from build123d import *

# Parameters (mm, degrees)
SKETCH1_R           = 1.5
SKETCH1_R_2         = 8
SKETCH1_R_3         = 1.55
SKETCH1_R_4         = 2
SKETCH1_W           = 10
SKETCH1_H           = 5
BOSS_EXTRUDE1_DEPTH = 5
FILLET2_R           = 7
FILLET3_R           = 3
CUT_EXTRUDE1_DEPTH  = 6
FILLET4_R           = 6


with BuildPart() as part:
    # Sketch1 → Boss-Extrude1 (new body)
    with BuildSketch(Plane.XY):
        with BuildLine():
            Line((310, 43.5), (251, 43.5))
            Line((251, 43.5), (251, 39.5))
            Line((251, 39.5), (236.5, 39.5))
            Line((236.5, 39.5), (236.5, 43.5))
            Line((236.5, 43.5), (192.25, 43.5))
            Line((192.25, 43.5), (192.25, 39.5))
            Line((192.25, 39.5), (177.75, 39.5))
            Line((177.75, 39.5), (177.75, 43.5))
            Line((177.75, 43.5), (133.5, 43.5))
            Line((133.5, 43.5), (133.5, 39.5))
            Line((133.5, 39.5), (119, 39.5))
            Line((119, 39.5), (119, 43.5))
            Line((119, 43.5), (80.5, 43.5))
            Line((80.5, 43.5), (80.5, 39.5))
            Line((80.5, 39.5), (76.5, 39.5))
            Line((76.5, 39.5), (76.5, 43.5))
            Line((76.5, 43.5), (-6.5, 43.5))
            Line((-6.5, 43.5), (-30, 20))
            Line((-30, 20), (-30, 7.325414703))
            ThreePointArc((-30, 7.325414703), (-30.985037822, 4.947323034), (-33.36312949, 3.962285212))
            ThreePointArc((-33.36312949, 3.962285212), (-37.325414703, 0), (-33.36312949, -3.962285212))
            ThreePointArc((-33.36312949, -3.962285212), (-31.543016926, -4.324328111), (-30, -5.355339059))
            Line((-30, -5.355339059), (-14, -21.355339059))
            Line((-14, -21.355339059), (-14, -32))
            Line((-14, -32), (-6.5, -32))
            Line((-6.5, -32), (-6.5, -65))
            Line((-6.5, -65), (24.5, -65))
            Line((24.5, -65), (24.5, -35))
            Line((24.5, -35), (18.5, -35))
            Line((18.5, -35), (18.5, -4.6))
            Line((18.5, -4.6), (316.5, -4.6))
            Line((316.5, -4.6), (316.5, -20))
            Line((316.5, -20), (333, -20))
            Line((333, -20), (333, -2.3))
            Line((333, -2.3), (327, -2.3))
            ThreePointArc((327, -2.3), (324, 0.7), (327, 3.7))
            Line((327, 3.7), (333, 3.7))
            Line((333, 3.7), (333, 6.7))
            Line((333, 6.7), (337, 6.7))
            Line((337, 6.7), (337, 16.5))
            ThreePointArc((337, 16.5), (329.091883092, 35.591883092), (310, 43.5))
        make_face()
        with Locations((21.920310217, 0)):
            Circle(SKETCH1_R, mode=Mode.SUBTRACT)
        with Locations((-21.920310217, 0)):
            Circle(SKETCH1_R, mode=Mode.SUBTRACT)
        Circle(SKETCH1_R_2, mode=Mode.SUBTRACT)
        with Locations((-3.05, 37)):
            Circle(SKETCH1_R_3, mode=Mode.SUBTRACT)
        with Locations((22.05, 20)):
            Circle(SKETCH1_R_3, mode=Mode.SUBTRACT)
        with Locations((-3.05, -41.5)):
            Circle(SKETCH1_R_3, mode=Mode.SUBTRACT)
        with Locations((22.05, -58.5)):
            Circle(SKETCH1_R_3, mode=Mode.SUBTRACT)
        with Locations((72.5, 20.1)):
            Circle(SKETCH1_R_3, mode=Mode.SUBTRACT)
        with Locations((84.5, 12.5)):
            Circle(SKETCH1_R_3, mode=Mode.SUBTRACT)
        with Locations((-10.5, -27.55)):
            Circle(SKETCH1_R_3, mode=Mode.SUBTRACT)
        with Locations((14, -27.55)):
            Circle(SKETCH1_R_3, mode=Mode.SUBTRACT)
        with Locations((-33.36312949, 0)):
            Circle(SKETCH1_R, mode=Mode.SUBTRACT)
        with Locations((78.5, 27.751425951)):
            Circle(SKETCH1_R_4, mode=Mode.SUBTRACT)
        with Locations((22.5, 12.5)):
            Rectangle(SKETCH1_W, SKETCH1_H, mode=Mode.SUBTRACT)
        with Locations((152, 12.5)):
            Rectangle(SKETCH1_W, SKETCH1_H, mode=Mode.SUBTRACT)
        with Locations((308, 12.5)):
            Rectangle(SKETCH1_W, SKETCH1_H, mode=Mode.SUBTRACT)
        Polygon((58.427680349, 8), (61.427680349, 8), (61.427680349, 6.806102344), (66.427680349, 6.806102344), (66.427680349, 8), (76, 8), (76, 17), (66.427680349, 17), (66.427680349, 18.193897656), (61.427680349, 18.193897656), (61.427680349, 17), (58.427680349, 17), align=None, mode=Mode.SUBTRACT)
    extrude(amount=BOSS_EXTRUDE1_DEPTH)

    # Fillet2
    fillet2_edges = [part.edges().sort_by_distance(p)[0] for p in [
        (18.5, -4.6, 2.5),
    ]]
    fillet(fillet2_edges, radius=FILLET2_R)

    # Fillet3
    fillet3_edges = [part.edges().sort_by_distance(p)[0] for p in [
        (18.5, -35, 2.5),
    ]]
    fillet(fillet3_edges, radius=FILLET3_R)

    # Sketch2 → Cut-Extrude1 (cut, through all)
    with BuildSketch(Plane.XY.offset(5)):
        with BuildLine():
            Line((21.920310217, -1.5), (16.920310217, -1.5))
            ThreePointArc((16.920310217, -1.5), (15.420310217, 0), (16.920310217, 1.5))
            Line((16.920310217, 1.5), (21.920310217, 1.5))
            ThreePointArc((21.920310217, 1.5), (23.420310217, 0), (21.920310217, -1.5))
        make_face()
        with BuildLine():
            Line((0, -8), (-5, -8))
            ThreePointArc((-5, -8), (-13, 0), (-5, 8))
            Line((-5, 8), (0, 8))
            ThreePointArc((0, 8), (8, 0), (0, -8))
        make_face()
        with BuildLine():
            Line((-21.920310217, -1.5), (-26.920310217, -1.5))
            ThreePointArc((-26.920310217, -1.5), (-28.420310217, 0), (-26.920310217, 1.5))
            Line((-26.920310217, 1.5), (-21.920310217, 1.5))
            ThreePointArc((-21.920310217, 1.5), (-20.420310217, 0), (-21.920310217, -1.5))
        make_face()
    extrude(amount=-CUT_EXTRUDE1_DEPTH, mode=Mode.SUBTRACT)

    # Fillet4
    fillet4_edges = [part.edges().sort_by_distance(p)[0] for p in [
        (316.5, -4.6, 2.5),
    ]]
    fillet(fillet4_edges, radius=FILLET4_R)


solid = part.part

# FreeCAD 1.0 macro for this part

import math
import FreeCAD as App
import Part
import Sketcher
Q = App.Units.Quantity


def edges_at(feature, points):
    """Names of the edges that pass closest to the given points."""
    edges = feature.Shape.Edges
    near = lambda p: min(range(len(edges)), key=lambda i: edges[i].distToShape(Part.Vertex(*p))[0])
    return sorted({f"Edge{near(p) + 1}" for p in points})

doc = App.newDocument("Part")
body = doc.addObject("PartDesign::Body", "Body")

sketch1 = doc.addObject("Sketcher::SketchObject", "Sketch")
body.addObject(sketch1)
sketch1.AttachmentSupport = (doc.XY_Plane, [""])
sketch1.MapMode = "FlatFace"
sketch1.addGeometry([
    Part.LineSegment(App.Vector(310, 43.5, 0), App.Vector(251, 43.5, 0)),
    Part.LineSegment(App.Vector(251, 43.5, 0), App.Vector(251, 39.5, 0)),
    Part.LineSegment(App.Vector(251, 39.5, 0), App.Vector(236.5, 39.5, 0)),
    Part.LineSegment(App.Vector(236.5, 39.5, 0), App.Vector(236.5, 43.5, 0)),
    Part.LineSegment(App.Vector(236.5, 43.5, 0), App.Vector(192.25, 43.5, 0)),
    Part.LineSegment(App.Vector(192.25, 43.5, 0), App.Vector(192.25, 39.5, 0)),
    Part.LineSegment(App.Vector(192.25, 39.5, 0), App.Vector(177.75, 39.5, 0)),
    Part.LineSegment(App.Vector(177.75, 39.5, 0), App.Vector(177.75, 43.5, 0)),
    Part.LineSegment(App.Vector(177.75, 43.5, 0), App.Vector(133.5, 43.5, 0)),
    Part.LineSegment(App.Vector(133.5, 43.5, 0), App.Vector(133.5, 39.5, 0)),
    Part.LineSegment(App.Vector(133.5, 39.5, 0), App.Vector(119, 39.5, 0)),
    Part.LineSegment(App.Vector(119, 39.5, 0), App.Vector(119, 43.5, 0)),
    Part.LineSegment(App.Vector(119, 43.5, 0), App.Vector(80.5, 43.5, 0)),
    Part.LineSegment(App.Vector(80.5, 43.5, 0), App.Vector(80.5, 39.5, 0)),
    Part.LineSegment(App.Vector(80.5, 39.5, 0), App.Vector(76.5, 39.5, 0)),
    Part.LineSegment(App.Vector(76.5, 39.5, 0), App.Vector(76.5, 43.5, 0)),
    Part.LineSegment(App.Vector(76.5, 43.5, 0), App.Vector(-6.5, 43.5, 0)),
    Part.LineSegment(App.Vector(-6.5, 43.5, 0), App.Vector(-30, 20, 0)),
    Part.LineSegment(App.Vector(-30, 20, 0), App.Vector(-30, 7.325415, 0)),
    Part.ArcOfCircle(Part.Circle(App.Vector(-33.363129, 7.325415, 0), App.Vector(0, 0, 1), 3.363129), math.radians(-90), math.radians(0)),
    Part.ArcOfCircle(Part.Circle(App.Vector(-33.363129, 0, 0), App.Vector(0, 0, 1), 3.962285), math.radians(90), math.radians(270)),
    Part.ArcOfCircle(Part.Circle(App.Vector(-33.363129, -8.718469, 0), App.Vector(0, 0, 1), 4.756183), math.radians(45), math.radians(90)),
    Part.LineSegment(App.Vector(-30, -5.355339, 0), App.Vector(-14, -21.355339, 0)),
    Part.LineSegment(App.Vector(-14, -21.355339, 0), App.Vector(-14, -32, 0)),
    Part.LineSegment(App.Vector(-14, -32, 0), App.Vector(-6.5, -32, 0)),
    Part.LineSegment(App.Vector(-6.5, -32, 0), App.Vector(-6.5, -65, 0)),
    Part.LineSegment(App.Vector(-6.5, -65, 0), App.Vector(24.5, -65, 0)),
    Part.LineSegment(App.Vector(24.5, -65, 0), App.Vector(24.5, -35, 0)),
    Part.LineSegment(App.Vector(24.5, -35, 0), App.Vector(18.5, -35, 0)),
    Part.LineSegment(App.Vector(18.5, -35, 0), App.Vector(18.5, -4.6, 0)),
    Part.LineSegment(App.Vector(18.5, -4.6, 0), App.Vector(316.5, -4.6, 0)),
    Part.LineSegment(App.Vector(316.5, -4.6, 0), App.Vector(316.5, -20, 0)),
    Part.LineSegment(App.Vector(316.5, -20, 0), App.Vector(333, -20, 0)),
    Part.LineSegment(App.Vector(333, -20, 0), App.Vector(333, -2.3, 0)),
    Part.LineSegment(App.Vector(333, -2.3, 0), App.Vector(327, -2.3, 0)),
    Part.ArcOfCircle(Part.Circle(App.Vector(327, 0.7, 0), App.Vector(0, 0, 1), 3), math.radians(90), math.radians(270)),
    Part.LineSegment(App.Vector(327, 3.7, 0), App.Vector(333, 3.7, 0)),
    Part.LineSegment(App.Vector(333, 3.7, 0), App.Vector(333, 6.7, 0)),
    Part.LineSegment(App.Vector(333, 6.7, 0), App.Vector(337, 6.7, 0)),
    Part.LineSegment(App.Vector(337, 6.7, 0), App.Vector(337, 16.5, 0)),
    Part.ArcOfCircle(Part.Circle(App.Vector(310, 16.5, 0), App.Vector(0, 0, 1), 27), math.radians(0), math.radians(90)),
    Part.Circle(App.Vector(22.05, -58.5, 0), App.Vector(0, 0, 1), 1.55),
    Part.Circle(App.Vector(-3.05, -41.5, 0), App.Vector(0, 0, 1), 1.55),
    Part.Circle(App.Vector(-10.5, -27.55, 0), App.Vector(0, 0, 1), 1.55),
    Part.Circle(App.Vector(14, -27.55, 0), App.Vector(0, 0, 1), 1.55),
    Part.Circle(App.Vector(-33.363129, 0, 0), App.Vector(0, 0, 1), 1.5),
    Part.Circle(App.Vector(-21.92031, 0, 0), App.Vector(0, 0, 1), 1.5),
    Part.Circle(App.Vector(0, 0, 0), App.Vector(0, 0, 1), 8),
    Part.Circle(App.Vector(21.92031, 0, 0), App.Vector(0, 0, 1), 1.5),
    Part.LineSegment(App.Vector(27.5, 10, 0), App.Vector(17.5, 10, 0)),
    Part.LineSegment(App.Vector(17.5, 10, 0), App.Vector(17.5, 15, 0)),
    Part.LineSegment(App.Vector(17.5, 15, 0), App.Vector(27.5, 15, 0)),
    Part.LineSegment(App.Vector(27.5, 15, 0), App.Vector(27.5, 10, 0)),
    Part.LineSegment(App.Vector(61.42768, 8, 0), App.Vector(58.42768, 8, 0)),
    Part.LineSegment(App.Vector(58.42768, 8, 0), App.Vector(58.42768, 17, 0)),
    Part.LineSegment(App.Vector(58.42768, 17, 0), App.Vector(61.42768, 17, 0)),
    Part.LineSegment(App.Vector(61.42768, 17, 0), App.Vector(61.42768, 18.193898, 0)),
    Part.LineSegment(App.Vector(61.42768, 18.193898, 0), App.Vector(66.42768, 18.193898, 0)),
    Part.LineSegment(App.Vector(66.42768, 18.193898, 0), App.Vector(66.42768, 17, 0)),
    Part.LineSegment(App.Vector(66.42768, 17, 0), App.Vector(76, 17, 0)),
    Part.LineSegment(App.Vector(76, 17, 0), App.Vector(76, 8, 0)),
    Part.LineSegment(App.Vector(76, 8, 0), App.Vector(66.42768, 8, 0)),
    Part.LineSegment(App.Vector(66.42768, 8, 0), App.Vector(66.42768, 6.806102, 0)),
    Part.LineSegment(App.Vector(66.42768, 6.806102, 0), App.Vector(61.42768, 6.806102, 0)),
    Part.LineSegment(App.Vector(61.42768, 6.806102, 0), App.Vector(61.42768, 8, 0)),
    Part.Circle(App.Vector(84.5, 12.5, 0), App.Vector(0, 0, 1), 1.55),
    Part.Circle(App.Vector(22.05, 20, 0), App.Vector(0, 0, 1), 1.55),
    Part.Circle(App.Vector(-3.05, 37, 0), App.Vector(0, 0, 1), 1.55),
    Part.Circle(App.Vector(72.5, 20.1, 0), App.Vector(0, 0, 1), 1.55),
    Part.Circle(App.Vector(78.5, 27.751426, 0), App.Vector(0, 0, 1), 2),
    Part.LineSegment(App.Vector(157, 10, 0), App.Vector(147, 10, 0)),
    Part.LineSegment(App.Vector(147, 10, 0), App.Vector(147, 15, 0)),
    Part.LineSegment(App.Vector(147, 15, 0), App.Vector(157, 15, 0)),
    Part.LineSegment(App.Vector(157, 15, 0), App.Vector(157, 10, 0)),
    Part.LineSegment(App.Vector(313, 10, 0), App.Vector(303, 10, 0)),
    Part.LineSegment(App.Vector(303, 10, 0), App.Vector(303, 15, 0)),
    Part.LineSegment(App.Vector(303, 15, 0), App.Vector(313, 15, 0)),
    Part.LineSegment(App.Vector(313, 15, 0), App.Vector(313, 10, 0)),
], False)
sketch1.addConstraint([
    Sketcher.Constraint("Coincident", 0, 2, 1, 1),
    Sketcher.Constraint("Coincident", 1, 2, 2, 1),
    Sketcher.Constraint("Coincident", 2, 2, 3, 1),
    Sketcher.Constraint("Coincident", 3, 2, 4, 1),
    Sketcher.Constraint("Coincident", 4, 2, 5, 1),
    Sketcher.Constraint("Coincident", 5, 2, 6, 1),
    Sketcher.Constraint("Coincident", 6, 2, 7, 1),
    Sketcher.Constraint("Coincident", 7, 2, 8, 1),
    Sketcher.Constraint("Coincident", 8, 2, 9, 1),
    Sketcher.Constraint("Coincident", 9, 2, 10, 1),
    Sketcher.Constraint("Coincident", 10, 2, 11, 1),
    Sketcher.Constraint("Coincident", 11, 2, 12, 1),
    Sketcher.Constraint("Coincident", 12, 2, 13, 1),
    Sketcher.Constraint("Coincident", 13, 2, 14, 1),
    Sketcher.Constraint("Coincident", 14, 2, 15, 1),
    Sketcher.Constraint("Coincident", 15, 2, 16, 1),
    Sketcher.Constraint("Coincident", 16, 2, 17, 1),
    Sketcher.Constraint("Coincident", 17, 2, 18, 1),
    Sketcher.Constraint("Tangent", 18, 2, 19, 2),
    Sketcher.Constraint("Tangent", 19, 1, 20, 1),
    Sketcher.Constraint("Tangent", 20, 2, 21, 2),
    Sketcher.Constraint("Tangent", 21, 1, 22, 1),
    Sketcher.Constraint("Coincident", 22, 2, 23, 1),
    Sketcher.Constraint("Coincident", 23, 2, 24, 1),
    Sketcher.Constraint("Coincident", 24, 2, 25, 1),
    Sketcher.Constraint("Coincident", 25, 2, 26, 1),
    Sketcher.Constraint("Coincident", 26, 2, 27, 1),
    Sketcher.Constraint("Coincident", 27, 2, 28, 1),
    Sketcher.Constraint("Coincident", 28, 2, 29, 1),
    Sketcher.Constraint("Coincident", 29, 2, 30, 1),
    Sketcher.Constraint("Coincident", 30, 2, 31, 1),
    Sketcher.Constraint("Coincident", 31, 2, 32, 1),
    Sketcher.Constraint("Coincident", 32, 2, 33, 1),
    Sketcher.Constraint("Coincident", 33, 2, 34, 1),
    Sketcher.Constraint("Tangent", 34, 2, 35, 2),
    Sketcher.Constraint("Tangent", 35, 1, 36, 1),
    Sketcher.Constraint("Coincident", 36, 2, 37, 1),
    Sketcher.Constraint("Coincident", 37, 2, 38, 1),
    Sketcher.Constraint("Coincident", 38, 2, 39, 1),
    Sketcher.Constraint("Tangent", 39, 2, 40, 1),
    Sketcher.Constraint("Tangent", 40, 2, 0, 1),
    Sketcher.Constraint("Coincident", 49, 2, 50, 1),
    Sketcher.Constraint("Coincident", 50, 2, 51, 1),
    Sketcher.Constraint("Coincident", 51, 2, 52, 1),
    Sketcher.Constraint("Coincident", 52, 2, 49, 1),
    Sketcher.Constraint("Coincident", 53, 2, 54, 1),
    Sketcher.Constraint("Coincident", 54, 2, 55, 1),
    Sketcher.Constraint("Coincident", 55, 2, 56, 1),
    Sketcher.Constraint("Coincident", 56, 2, 57, 1),
    Sketcher.Constraint("Coincident", 57, 2, 58, 1),
    Sketcher.Constraint("Coincident", 58, 2, 59, 1),
    Sketcher.Constraint("Coincident", 59, 2, 60, 1),
    Sketcher.Constraint("Coincident", 60, 2, 61, 1),
    Sketcher.Constraint("Coincident", 61, 2, 62, 1),
    Sketcher.Constraint("Coincident", 62, 2, 63, 1),
    Sketcher.Constraint("Coincident", 63, 2, 64, 1),
    Sketcher.Constraint("Coincident", 64, 2, 53, 1),
    Sketcher.Constraint("Coincident", 70, 2, 71, 1),
    Sketcher.Constraint("Coincident", 71, 2, 72, 1),
    Sketcher.Constraint("Coincident", 72, 2, 73, 1),
    Sketcher.Constraint("Coincident", 73, 2, 70, 1),
    Sketcher.Constraint("Coincident", 74, 2, 75, 1),
    Sketcher.Constraint("Coincident", 75, 2, 76, 1),
    Sketcher.Constraint("Coincident", 76, 2, 77, 1),
    Sketcher.Constraint("Coincident", 77, 2, 74, 1),
    Sketcher.Constraint("Horizontal", 0),
    Sketcher.Constraint("Vertical", 1),
    Sketcher.Constraint("Horizontal", 2),
    Sketcher.Constraint("Vertical", 3),
    Sketcher.Constraint("Horizontal", 4),
    Sketcher.Constraint("Vertical", 5),
    Sketcher.Constraint("Horizontal", 6),
    Sketcher.Constraint("Vertical", 7),
    Sketcher.Constraint("Horizontal", 8),
    Sketcher.Constraint("Vertical", 9),
    Sketcher.Constraint("Horizontal", 10),
    Sketcher.Constraint("Vertical", 11),
    Sketcher.Constraint("Horizontal", 12),
    Sketcher.Constraint("Vertical", 13),
    Sketcher.Constraint("Horizontal", 14),
    Sketcher.Constraint("Vertical", 15),
    Sketcher.Constraint("Horizontal", 16),
    Sketcher.Constraint("Vertical", 18),
    Sketcher.Constraint("Vertical", 23),
    Sketcher.Constraint("Horizontal", 24),
    Sketcher.Constraint("Vertical", 25),
    Sketcher.Constraint("Horizontal", 26),
    Sketcher.Constraint("Vertical", 27),
    Sketcher.Constraint("Horizontal", 28),
    Sketcher.Constraint("Vertical", 29),
    Sketcher.Constraint("Horizontal", 30),
    Sketcher.Constraint("Vertical", 31),
    Sketcher.Constraint("Horizontal", 32),
    Sketcher.Constraint("Vertical", 33),
    Sketcher.Constraint("Horizontal", 34),
    Sketcher.Constraint("Horizontal", 36),
    Sketcher.Constraint("Vertical", 37),
    Sketcher.Constraint("Horizontal", 38),
    Sketcher.Constraint("Vertical", 39),
    Sketcher.Constraint("Horizontal", 49),
    Sketcher.Constraint("Vertical", 50),
    Sketcher.Constraint("Horizontal", 51),
    Sketcher.Constraint("Vertical", 52),
    Sketcher.Constraint("Horizontal", 53),
    Sketcher.Constraint("Vertical", 54),
    Sketcher.Constraint("Horizontal", 55),
    Sketcher.Constraint("Vertical", 56),
    Sketcher.Constraint("Horizontal", 57),
    Sketcher.Constraint("Vertical", 58),
    Sketcher.Constraint("Horizontal", 59),
    Sketcher.Constraint("Vertical", 60),
    Sketcher.Constraint("Horizontal", 61),
    Sketcher.Constraint("Vertical", 62),
    Sketcher.Constraint("Horizontal", 63),
    Sketcher.Constraint("Vertical", 64),
    Sketcher.Constraint("Horizontal", 70),
    Sketcher.Constraint("Vertical", 71),
    Sketcher.Constraint("Horizontal", 72),
    Sketcher.Constraint("Vertical", 73),
    Sketcher.Constraint("Horizontal", 74),
    Sketcher.Constraint("Vertical", 75),
    Sketcher.Constraint("Horizontal", 76),
    Sketcher.Constraint("Vertical", 77),
    Sketcher.Constraint("Coincident", 47, 3, -1, 1),
    Sketcher.Constraint("Coincident", 45, 3, 20, 3),
    Sketcher.Constraint("Equal", 41, 42),
    Sketcher.Constraint("Equal", 42, 43),
    Sketcher.Constraint("Equal", 43, 44),
    Sketcher.Constraint("Equal", 45, 46),
    Sketcher.Constraint("Equal", 46, 48),
    Sketcher.Constraint("Equal", 44, 65),
    Sketcher.Constraint("Equal", 65, 66),
    Sketcher.Constraint("Equal", 66, 67),
    Sketcher.Constraint("Equal", 67, 68),
    Sketcher.Constraint("Symmetric", 46, 3, 48, 3, -1, 1),
    Sketcher.Constraint("Symmetric", 19, 1, 20, 2, -1),
    Sketcher.Constraint("PointOnObject", 46, 3, -1),
    Sketcher.Constraint("Perpendicular", 17, 22),
    Sketcher.Constraint("Horizontal", 43, 3, 44, 3),
    Sketcher.Constraint("Horizontal", 0, 2, 3, 2),
    Sketcher.Constraint("Horizontal", 2, 2, 5, 2),
    Sketcher.Constraint("Horizontal", 4, 2, 7, 2),
    Sketcher.Constraint("Horizontal", 6, 2, 9, 2),
    Sketcher.Constraint("Horizontal", 8, 2, 11, 2),
    Sketcher.Constraint("Horizontal", 10, 2, 13, 2),
    Sketcher.Constraint("Horizontal", 12, 2, 15, 2),
    Sketcher.Constraint("Horizontal", 66, 3, 17, 2),
    Sketcher.Constraint("Horizontal", 55, 2, 58, 2),
    Sketcher.Constraint("Horizontal", 53, 2, 60, 2),
    Sketcher.Constraint("Horizontal", 52, 2, 70, 2),
    Sketcher.Constraint("Horizontal", 51, 2, 71, 2),
    Sketcher.Constraint("Horizontal", 73, 2, 74, 2),
    Sketcher.Constraint("Horizontal", 72, 2, 75, 2),
    Sketcher.Constraint("Vertical", 19, 3, 20, 3),
    Sketcher.Constraint("Vertical", 41, 3, 66, 3),
    Sketcher.Constraint("Vertical", 42, 3, 67, 3),
    Sketcher.Constraint("Vertical", 18, 2, 21, 1),
    Sketcher.Constraint("Vertical", 16, 2, 24, 2),
    Sketcher.Constraint("Vertical", 33, 2, 36, 2),
    Sketcher.Constraint("Vertical", 58, 2, 61, 2),
    Sketcher.Constraint("Vertical", 56, 2, 63, 2),
    Sketcher.Constraint("Equal", 2, 6),
    Sketcher.Constraint("Equal", 4, 8),
    Sketcher.Constraint("Equal", 6, 10),
    Sketcher.Constraint("Equal", 28, 34),
    Sketcher.Constraint("Equal", 14, 38),
    Sketcher.Constraint("Equal", 51, 70),
    Sketcher.Constraint("Equal", 72, 74),
    Sketcher.Constraint("Equal", 38, 1),
    Sketcher.Constraint("Equal", 55, 37),
    Sketcher.Constraint("Equal", 63, 50),
    Sketcher.Constraint("Equal", 58, 62),
    Sketcher.Constraint("Diameter", 45, Q("3 mm")),
    Sketcher.Constraint("Diameter", 47, Q("16 mm")),
    Sketcher.Constraint("Diameter", 69, Q("4 mm")),
    Sketcher.Constraint("Radius", 35, Q("3 mm")),
    Sketcher.Constraint("Radius", 40, Q("27 mm")),
    Sketcher.Constraint("Diameter", 41, Q("3.1 mm")),
    Sketcher.Constraint("DistanceX", 0, 2, 0, 1, Q("59 mm")),
    Sketcher.Constraint("DistanceX", 14, 2, 14, 1, Q("4 mm")),
    Sketcher.Constraint("DistanceX", 16, 2, 16, 1, Q("83 mm")),
    Sketcher.Constraint("DistanceX", 26, 1, 26, 2, Q("31 mm")),
    Sketcher.Constraint("DistanceX", 28, 2, 28, 1, Q("6 mm")),
    Sketcher.Constraint("DistanceX", 30, 1, 30, 2, Q("298 mm")),
    Sketcher.Constraint("DistanceX", 49, 2, 49, 1, Q("10 mm")),
    Sketcher.Constraint("DistanceX", 53, 2, 53, 1, Q("3 mm")),
    Sketcher.Constraint("DistanceX", 57, 1, 57, 2, Q("5 mm")),
    Sketcher.Constraint("DistanceY", 25, 2, 25, 1, Q("33 mm")),
    Sketcher.Constraint("DistanceY", 27, 1, 27, 2, Q("30 mm")),
    Sketcher.Constraint("DistanceY", 54, 1, 54, 2, Q("9 mm")),
    Sketcher.Constraint("Angle", 17, Q("-135 deg")),
    Sketcher.Constraint("DistanceX", 2, 2, 2, 1, Q("14.5 mm")),
    Sketcher.Constraint("DistanceX", 12, 2, 12, 1, Q("38.5 mm")),
    Sketcher.Constraint("DistanceX", 24, 1, 24, 2, Q("7.5 mm")),
    Sketcher.Constraint("DistanceX", 32, 1, 32, 2, Q("16.5 mm")),
    Sketcher.Constraint("DistanceY", 29, 1, 29, 2, Q("30.4 mm")),
    Sketcher.Constraint("DistanceY", 31, 2, 31, 1, Q("15.4 mm")),
    Sketcher.Constraint("DistanceY", 33, 1, 33, 2, Q("17.7 mm")),
    Sketcher.Constraint("DistanceY", 39, 1, 39, 2, Q("9.8 mm")),
    Sketcher.Constraint("DistanceX", -1, 1, 35, 3, Q("327 mm")),
    Sketcher.Constraint("DistanceX", -1, 1, 44, 3, Q("14 mm")),
    Sketcher.Constraint("DistanceY", -1, 1, 66, 3, Q("20 mm")),
    Sketcher.Constraint("DistanceY", -1, 1, 67, 3, Q("37 mm")),
    Sketcher.Constraint("DistanceX", 17, 2, -1, 1, Q("30 mm")),
    Sketcher.Constraint("DistanceY", -1, 1, 49, 2, Q("10 mm")),
    Sketcher.Constraint("DistanceY", -1, 1, 53, 2, Q("8 mm")),
    Sketcher.Constraint("DistanceX", -1, 1, 59, 2, Q("76 mm")),
    Sketcher.Constraint("DistanceX", -1, 1, 70, 2, Q("147 mm")),
    Sketcher.Constraint("DistanceX", -1, 1, 74, 2, Q("303 mm")),
    Sketcher.Constraint("DistanceY", 41, 3, -1, 1, Q("58.5 mm")),
    Sketcher.Constraint("DistanceY", 42, 3, -1, 1, Q("41.5 mm")),
    Sketcher.Constraint("DistanceX", 43, 3, -1, 1, Q("10.5 mm")),
    Sketcher.Constraint("DistanceX", -1, 1, 65, 3, Q("84.5 mm")),
    Sketcher.Constraint("DistanceY", -1, 1, 65, 3, Q("12.5 mm")),
    Sketcher.Constraint("DistanceX", -1, 1, 68, 3, Q("72.5 mm")),
    Sketcher.Constraint("DistanceY", -1, 1, 68, 3, Q("20.1 mm")),
    Sketcher.Constraint("DistanceX", -1, 1, 69, 3, Q("78.5 mm")),
    Sketcher.Constraint("DistanceX", -1, 1, 49, 2, Q("17.5 mm")),
    Sketcher.Constraint("DistanceX", -1, 1, 41, 3, Q("22.05 mm")),
    Sketcher.Constraint("DistanceX", 42, 3, -1, 1, Q("3.05 mm")),
    Sketcher.Constraint("DistanceY", 43, 3, -1, 1, Q("27.55 mm")),
    Sketcher.Constraint("Radius", 19, Q("3.363129 mm")),
    Sketcher.Constraint("Radius", 20, Q("3.962285 mm")),
    Sketcher.Constraint("DistanceX", 59, 1, 59, 2, Q("9.57232 mm")),
    Sketcher.Constraint("DistanceY", 56, 1, 56, 2, Q("1.193898 mm")),
    Sketcher.Constraint("DistanceX", 46, 3, -1, 1, Q("21.92031 mm")),
    Sketcher.Constraint("DistanceY", -1, 1, 69, 3, Q("27.751426 mm")),
])
pad1 = doc.addObject("PartDesign::Pad", "Pad")
body.addObject(pad1)
pad1.Profile = sketch1
pad1.Length = 5
doc.recompute()

fillet = doc.addObject("PartDesign::Fillet", "Fillet")
body.addObject(fillet)
fillet.Base = (pad1, edges_at(pad1, [(18.5, -4.6, 2.5)]))
fillet.Radius = 7
doc.recompute()

fillet2 = doc.addObject("PartDesign::Fillet", "Fillet001")
body.addObject(fillet2)
fillet2.Base = (fillet, edges_at(fillet, [(18.5, -35, 2.5)]))
fillet2.Radius = 3

sketch2 = doc.addObject("Sketcher::SketchObject", "Sketch001")
body.addObject(sketch2)
sketch2.AttachmentSupport = (doc.XY_Plane, [""])
sketch2.MapMode = "FlatFace"
sketch2.AttachmentOffset = App.Placement(App.Vector(0, 0, 5), App.Rotation())
sketch2.addGeometry([
    Part.LineSegment(App.Vector(16.92031, -1.5, 0), App.Vector(21.92031, -1.5, 0)),
    Part.ArcOfCircle(Part.Circle(App.Vector(21.92031, 0, 0), App.Vector(0, 0, 1), 1.5), math.radians(-90), math.radians(90)),
    Part.LineSegment(App.Vector(21.92031, 1.5, 0), App.Vector(16.92031, 1.5, 0)),
    Part.ArcOfCircle(Part.Circle(App.Vector(16.92031, 0, 0), App.Vector(0, 0, 1), 1.5), math.radians(90), math.radians(270)),
    Part.LineSegment(App.Vector(-5, -8, 0), App.Vector(0, -8, 0)),
    Part.ArcOfCircle(Part.Circle(App.Vector(0, 0, 0), App.Vector(0, 0, 1), 8), math.radians(-90), math.radians(90)),
    Part.LineSegment(App.Vector(0, 8, 0), App.Vector(-5, 8, 0)),
    Part.ArcOfCircle(Part.Circle(App.Vector(-5, 0, 0), App.Vector(0, 0, 1), 8), math.radians(90), math.radians(270)),
    Part.LineSegment(App.Vector(-26.92031, -1.5, 0), App.Vector(-21.92031, -1.5, 0)),
    Part.ArcOfCircle(Part.Circle(App.Vector(-21.92031, 0, 0), App.Vector(0, 0, 1), 1.5), math.radians(-90), math.radians(90)),
    Part.LineSegment(App.Vector(-21.92031, 1.5, 0), App.Vector(-26.92031, 1.5, 0)),
    Part.ArcOfCircle(Part.Circle(App.Vector(-26.92031, 0, 0), App.Vector(0, 0, 1), 1.5), math.radians(90), math.radians(270)),
], False)
sketch2.addConstraint([
    Sketcher.Constraint("Tangent", 0, 2, 1, 1),
    Sketcher.Constraint("Tangent", 1, 2, 2, 1),
    Sketcher.Constraint("Tangent", 2, 2, 3, 1),
    Sketcher.Constraint("Tangent", 3, 2, 0, 1),
    Sketcher.Constraint("Tangent", 4, 2, 5, 1),
    Sketcher.Constraint("Tangent", 5, 2, 6, 1),
    Sketcher.Constraint("Tangent", 6, 2, 7, 1),
    Sketcher.Constraint("Tangent", 7, 2, 4, 1),
    Sketcher.Constraint("Tangent", 8, 2, 9, 1),
    Sketcher.Constraint("Tangent", 9, 2, 10, 1),
    Sketcher.Constraint("Tangent", 10, 2, 11, 1),
    Sketcher.Constraint("Tangent", 11, 2, 8, 1),
    Sketcher.Constraint("Horizontal", 0),
    Sketcher.Constraint("Horizontal", 2),
    Sketcher.Constraint("Horizontal", 4),
    Sketcher.Constraint("Horizontal", 6),
    Sketcher.Constraint("Horizontal", 8),
    Sketcher.Constraint("Horizontal", 10),
    Sketcher.Constraint("Coincident", 5, 3, -1, 1),
    Sketcher.Constraint("Equal", 3, 9),
    Sketcher.Constraint("Symmetric", 1, 3, 9, 3, -1, 1),
    Sketcher.Constraint("PointOnObject", 1, 3, -1),
    Sketcher.Constraint("Equal", 2, 4),
    Sketcher.Constraint("Equal", 6, 8),
    Sketcher.Constraint("Radius", 5, Q("8 mm")),
    Sketcher.Constraint("Radius", 1, Q("1.5 mm")),
    Sketcher.Constraint("DistanceX", 0, 1, 0, 2, Q("5 mm")),
    Sketcher.Constraint("DistanceX", -1, 1, 1, 3, Q("21.92031 mm")),
])
pocket1 = doc.addObject("PartDesign::Pocket", "Pocket")
body.addObject(pocket1)
pocket1.Profile = sketch2
pocket1.Type = "ThroughAll"
doc.recompute()

fillet3 = doc.addObject("PartDesign::Fillet", "Fillet002")
body.addObject(fillet3)
fillet3.Base = (pocket1, edges_at(pocket1, [(316.5, -4.6, 2.5)]))
fillet3.Radius = 6

doc.recompute()
